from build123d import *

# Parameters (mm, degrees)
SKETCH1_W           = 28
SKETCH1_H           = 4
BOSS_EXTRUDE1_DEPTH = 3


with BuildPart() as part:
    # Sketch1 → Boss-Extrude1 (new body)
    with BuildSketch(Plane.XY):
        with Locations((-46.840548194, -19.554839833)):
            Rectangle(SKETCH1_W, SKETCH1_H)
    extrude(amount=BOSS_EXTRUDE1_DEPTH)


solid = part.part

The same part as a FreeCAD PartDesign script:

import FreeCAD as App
import Part
import Sketcher
Q = App.Units.Quantity


def add_polygon(sketch, points):
    """Adds a closed chain of lines whose ends are joined by coincident constraints."""
    first, n = sketch.GeometryCount, len(points)
    for a, b in zip(points, points[1:] + points[:1]):
        sketch.addGeometry(Part.LineSegment(App.Vector(*a, 0), App.Vector(*b, 0)), False)
    for i in range(n):
        sketch.addConstraint(Sketcher.Constraint("Coincident", first + i, 2, first + (i + 1) % n, 1))

doc = App.newDocument("Part")
body = doc.addObject("PartDesign::Body", "Body")

sketch1 = body.newObject("Sketcher::SketchObject", "Sketch")
sketch1.AttachmentSupport = (doc.getObject("XY_Plane"), [""])
sketch1.MapMode = "FlatFace"
add_polygon(sketch1, [(-60.8, -17.6), (-60.8, -21.6), (-32.8, -21.6), (-32.8, -17.6)])
sketch1.addConstraint([
    Sketcher.Constraint("Vertical", 0),
    Sketcher.Constraint("Horizontal", 1),
    Sketcher.Constraint("Vertical", 2),
    Sketcher.Constraint("Horizontal", 3),
    Sketcher.Constraint("DistanceX", 1, 1, 1, 2, Q("28 mm")),
    Sketcher.Constraint("DistanceY", 0, 2, 0, 1, Q("4 mm")),
    Sketcher.Constraint("DistanceX", 0, 2, -1, 1, Q("60.840548 mm")),
    Sketcher.Constraint("DistanceY", 0, 2, -1, 1, Q("21.55484 mm")),
])
pad1 = body.newObject("PartDesign::Pad", "Pad")
pad1.Profile = sketch1
pad1.Length = 3

doc.recompute()
